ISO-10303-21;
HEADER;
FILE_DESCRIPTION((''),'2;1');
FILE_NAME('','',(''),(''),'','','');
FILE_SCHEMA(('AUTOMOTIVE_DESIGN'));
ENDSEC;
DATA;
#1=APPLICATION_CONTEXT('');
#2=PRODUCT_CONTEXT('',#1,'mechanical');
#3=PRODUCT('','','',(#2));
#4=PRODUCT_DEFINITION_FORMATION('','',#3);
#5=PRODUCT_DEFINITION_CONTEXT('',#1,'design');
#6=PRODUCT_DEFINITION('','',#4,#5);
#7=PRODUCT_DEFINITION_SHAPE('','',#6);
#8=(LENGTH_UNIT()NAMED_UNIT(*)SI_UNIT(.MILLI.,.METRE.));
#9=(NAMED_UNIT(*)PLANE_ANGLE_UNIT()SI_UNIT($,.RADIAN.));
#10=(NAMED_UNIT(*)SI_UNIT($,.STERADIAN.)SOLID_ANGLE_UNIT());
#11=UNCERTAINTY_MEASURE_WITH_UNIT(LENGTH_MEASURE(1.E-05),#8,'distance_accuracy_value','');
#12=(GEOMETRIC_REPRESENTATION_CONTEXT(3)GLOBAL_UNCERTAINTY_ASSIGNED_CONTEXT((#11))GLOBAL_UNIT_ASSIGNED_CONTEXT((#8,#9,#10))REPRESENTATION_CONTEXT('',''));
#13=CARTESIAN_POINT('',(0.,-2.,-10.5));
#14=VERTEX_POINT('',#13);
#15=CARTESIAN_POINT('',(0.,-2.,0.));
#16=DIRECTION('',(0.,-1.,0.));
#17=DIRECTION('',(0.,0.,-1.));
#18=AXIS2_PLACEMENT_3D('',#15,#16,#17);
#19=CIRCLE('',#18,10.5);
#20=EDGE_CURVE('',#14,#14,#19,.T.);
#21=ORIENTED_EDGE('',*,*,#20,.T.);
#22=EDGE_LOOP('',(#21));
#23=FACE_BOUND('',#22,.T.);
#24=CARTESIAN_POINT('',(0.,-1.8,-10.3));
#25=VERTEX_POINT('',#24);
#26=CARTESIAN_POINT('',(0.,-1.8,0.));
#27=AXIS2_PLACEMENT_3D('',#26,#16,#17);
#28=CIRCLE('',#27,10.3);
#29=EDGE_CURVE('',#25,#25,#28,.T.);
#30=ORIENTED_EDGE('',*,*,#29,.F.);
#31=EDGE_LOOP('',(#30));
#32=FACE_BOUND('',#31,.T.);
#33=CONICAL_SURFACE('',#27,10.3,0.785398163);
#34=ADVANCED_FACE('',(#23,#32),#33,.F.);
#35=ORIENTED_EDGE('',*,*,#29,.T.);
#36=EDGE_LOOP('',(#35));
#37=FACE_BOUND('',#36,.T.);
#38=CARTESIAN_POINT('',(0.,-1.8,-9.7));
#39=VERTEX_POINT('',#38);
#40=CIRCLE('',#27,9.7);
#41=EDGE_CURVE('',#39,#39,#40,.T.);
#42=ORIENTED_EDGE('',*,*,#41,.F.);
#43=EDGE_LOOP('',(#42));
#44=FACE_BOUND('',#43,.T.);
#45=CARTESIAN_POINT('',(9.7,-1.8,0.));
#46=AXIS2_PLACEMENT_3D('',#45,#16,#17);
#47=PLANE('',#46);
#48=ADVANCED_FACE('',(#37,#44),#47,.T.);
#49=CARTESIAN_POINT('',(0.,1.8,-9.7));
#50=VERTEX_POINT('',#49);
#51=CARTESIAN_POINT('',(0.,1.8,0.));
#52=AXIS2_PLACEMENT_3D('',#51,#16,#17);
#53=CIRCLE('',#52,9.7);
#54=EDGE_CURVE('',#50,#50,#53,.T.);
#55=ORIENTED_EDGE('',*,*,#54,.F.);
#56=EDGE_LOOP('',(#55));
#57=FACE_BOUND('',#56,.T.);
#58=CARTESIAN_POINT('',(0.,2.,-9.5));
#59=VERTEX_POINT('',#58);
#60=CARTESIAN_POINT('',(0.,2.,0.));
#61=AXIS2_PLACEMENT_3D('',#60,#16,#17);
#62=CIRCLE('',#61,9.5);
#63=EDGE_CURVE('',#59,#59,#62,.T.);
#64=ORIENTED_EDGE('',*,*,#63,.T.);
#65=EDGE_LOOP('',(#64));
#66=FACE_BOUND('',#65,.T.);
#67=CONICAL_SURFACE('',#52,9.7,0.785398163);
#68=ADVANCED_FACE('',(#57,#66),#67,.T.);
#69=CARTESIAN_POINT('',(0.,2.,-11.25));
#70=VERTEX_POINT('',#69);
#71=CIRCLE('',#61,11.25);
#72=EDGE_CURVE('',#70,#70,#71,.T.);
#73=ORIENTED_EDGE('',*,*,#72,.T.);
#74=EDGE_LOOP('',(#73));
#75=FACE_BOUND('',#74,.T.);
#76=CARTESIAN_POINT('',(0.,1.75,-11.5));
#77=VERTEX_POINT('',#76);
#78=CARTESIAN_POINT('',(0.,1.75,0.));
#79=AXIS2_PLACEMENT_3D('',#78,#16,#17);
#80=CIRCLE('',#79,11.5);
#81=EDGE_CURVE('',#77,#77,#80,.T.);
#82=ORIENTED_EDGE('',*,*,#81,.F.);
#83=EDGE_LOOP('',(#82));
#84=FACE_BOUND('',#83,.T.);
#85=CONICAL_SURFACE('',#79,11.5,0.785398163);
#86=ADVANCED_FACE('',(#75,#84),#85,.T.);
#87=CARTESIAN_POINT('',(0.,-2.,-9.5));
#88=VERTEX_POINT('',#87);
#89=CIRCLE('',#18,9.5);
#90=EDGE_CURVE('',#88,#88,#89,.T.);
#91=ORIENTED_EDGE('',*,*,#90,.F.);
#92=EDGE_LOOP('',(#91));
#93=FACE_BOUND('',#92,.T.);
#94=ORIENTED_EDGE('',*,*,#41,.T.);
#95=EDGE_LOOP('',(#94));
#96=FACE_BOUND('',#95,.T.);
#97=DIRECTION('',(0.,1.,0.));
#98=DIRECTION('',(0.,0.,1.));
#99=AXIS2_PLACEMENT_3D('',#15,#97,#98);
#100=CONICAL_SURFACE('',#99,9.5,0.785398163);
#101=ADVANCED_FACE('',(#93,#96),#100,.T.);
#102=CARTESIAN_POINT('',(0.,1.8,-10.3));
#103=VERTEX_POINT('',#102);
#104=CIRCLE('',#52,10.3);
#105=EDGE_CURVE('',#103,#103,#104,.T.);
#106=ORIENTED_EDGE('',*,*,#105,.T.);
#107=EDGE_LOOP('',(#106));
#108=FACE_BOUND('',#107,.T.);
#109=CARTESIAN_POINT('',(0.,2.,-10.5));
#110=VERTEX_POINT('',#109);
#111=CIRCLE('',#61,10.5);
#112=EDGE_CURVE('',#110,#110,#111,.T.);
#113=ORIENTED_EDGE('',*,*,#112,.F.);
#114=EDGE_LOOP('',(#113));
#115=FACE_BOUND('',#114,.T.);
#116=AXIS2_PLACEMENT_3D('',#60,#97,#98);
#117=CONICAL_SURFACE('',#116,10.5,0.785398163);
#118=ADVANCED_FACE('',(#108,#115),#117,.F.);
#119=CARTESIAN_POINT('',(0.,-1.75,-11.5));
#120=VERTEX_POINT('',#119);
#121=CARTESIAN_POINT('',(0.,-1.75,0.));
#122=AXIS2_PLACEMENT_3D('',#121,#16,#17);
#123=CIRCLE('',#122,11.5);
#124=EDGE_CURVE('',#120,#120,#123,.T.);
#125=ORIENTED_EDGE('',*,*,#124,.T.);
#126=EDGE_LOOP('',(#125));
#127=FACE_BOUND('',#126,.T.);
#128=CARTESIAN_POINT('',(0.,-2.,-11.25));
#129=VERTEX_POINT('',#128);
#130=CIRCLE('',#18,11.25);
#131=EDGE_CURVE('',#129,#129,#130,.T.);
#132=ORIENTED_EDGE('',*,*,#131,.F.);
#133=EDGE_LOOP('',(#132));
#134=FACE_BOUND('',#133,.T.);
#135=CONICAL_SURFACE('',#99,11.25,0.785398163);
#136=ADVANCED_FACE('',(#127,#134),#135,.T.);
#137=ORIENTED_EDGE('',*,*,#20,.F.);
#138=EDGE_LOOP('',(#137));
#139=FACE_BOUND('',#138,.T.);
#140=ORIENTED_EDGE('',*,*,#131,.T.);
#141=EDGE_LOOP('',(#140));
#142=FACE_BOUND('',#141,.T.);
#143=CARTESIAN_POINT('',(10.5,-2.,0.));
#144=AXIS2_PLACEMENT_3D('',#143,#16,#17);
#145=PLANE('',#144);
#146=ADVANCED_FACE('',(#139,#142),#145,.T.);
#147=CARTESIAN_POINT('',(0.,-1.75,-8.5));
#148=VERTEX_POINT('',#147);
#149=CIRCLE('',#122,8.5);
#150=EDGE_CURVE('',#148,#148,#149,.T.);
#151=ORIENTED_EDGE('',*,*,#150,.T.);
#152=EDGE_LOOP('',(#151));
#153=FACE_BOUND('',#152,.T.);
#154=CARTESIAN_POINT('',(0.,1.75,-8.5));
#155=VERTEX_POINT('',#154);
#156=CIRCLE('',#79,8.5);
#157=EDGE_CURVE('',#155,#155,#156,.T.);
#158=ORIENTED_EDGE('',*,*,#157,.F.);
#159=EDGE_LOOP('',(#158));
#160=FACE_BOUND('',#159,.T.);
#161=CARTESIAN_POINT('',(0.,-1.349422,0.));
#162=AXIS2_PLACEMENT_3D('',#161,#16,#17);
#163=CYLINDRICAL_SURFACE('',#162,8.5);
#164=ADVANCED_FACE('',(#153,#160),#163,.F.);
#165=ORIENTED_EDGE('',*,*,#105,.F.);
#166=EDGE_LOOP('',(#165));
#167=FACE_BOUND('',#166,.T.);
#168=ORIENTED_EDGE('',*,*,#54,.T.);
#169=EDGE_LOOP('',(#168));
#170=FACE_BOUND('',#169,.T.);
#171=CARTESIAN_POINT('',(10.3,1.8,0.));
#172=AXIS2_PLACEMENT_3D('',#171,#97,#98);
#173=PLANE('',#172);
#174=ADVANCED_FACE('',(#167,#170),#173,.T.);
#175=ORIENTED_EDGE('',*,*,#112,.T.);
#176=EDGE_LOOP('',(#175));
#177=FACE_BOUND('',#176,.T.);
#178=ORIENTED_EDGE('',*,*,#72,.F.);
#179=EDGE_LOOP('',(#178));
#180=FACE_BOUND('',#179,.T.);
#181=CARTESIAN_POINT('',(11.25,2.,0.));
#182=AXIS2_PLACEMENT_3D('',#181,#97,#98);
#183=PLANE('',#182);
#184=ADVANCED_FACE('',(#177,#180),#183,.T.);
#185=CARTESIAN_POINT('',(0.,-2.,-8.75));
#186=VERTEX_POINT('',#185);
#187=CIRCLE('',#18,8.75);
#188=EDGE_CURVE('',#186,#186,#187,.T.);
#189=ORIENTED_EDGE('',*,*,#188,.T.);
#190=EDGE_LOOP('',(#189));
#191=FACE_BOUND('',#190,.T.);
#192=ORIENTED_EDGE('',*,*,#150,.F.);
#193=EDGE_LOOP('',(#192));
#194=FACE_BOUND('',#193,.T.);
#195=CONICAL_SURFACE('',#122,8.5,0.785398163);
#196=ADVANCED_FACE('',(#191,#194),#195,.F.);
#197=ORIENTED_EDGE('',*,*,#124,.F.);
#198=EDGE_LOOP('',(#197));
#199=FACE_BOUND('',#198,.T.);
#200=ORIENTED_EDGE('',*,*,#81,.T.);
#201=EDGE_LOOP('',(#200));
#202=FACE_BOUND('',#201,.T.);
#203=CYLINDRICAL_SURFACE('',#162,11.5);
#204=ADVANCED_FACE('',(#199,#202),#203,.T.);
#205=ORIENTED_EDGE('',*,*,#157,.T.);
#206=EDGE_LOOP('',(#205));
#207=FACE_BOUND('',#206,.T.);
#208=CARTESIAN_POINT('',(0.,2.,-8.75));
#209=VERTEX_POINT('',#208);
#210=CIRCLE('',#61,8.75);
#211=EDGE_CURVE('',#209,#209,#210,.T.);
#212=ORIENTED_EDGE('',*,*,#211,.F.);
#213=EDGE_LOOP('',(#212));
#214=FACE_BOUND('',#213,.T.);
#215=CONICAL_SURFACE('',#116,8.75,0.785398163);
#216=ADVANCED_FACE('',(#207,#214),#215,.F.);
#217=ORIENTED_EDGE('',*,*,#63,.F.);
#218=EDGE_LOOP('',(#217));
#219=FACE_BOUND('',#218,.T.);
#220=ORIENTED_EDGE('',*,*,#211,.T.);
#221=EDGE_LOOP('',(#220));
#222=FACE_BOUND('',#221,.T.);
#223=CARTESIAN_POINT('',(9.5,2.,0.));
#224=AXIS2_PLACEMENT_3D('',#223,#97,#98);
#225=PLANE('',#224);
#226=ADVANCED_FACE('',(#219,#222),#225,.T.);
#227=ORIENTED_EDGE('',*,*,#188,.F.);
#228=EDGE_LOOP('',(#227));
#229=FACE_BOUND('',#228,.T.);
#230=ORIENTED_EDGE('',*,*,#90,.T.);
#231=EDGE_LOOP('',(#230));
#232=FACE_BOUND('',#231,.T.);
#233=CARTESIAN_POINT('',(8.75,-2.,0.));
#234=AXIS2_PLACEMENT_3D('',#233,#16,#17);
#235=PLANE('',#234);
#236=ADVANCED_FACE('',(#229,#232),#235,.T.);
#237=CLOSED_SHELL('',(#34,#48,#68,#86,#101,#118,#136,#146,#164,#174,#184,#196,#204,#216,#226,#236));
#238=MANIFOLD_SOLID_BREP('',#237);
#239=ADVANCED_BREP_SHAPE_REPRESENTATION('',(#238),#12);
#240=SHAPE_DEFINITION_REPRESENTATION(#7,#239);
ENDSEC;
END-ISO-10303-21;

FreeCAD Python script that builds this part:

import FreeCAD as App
import Part
import Sketcher

V = App.Vector


def add_polygon(sketch, points):
    """Adds a closed chain of lines whose ends are joined by coincident constraints."""
    first, n = sketch.GeometryCount, len(points)
    for a, b in zip(points, points[1:] + points[:1]):
        sketch.addGeometry(Part.LineSegment(App.Vector(*a, 0), App.Vector(*b, 0)), False)
    for i in range(n):
        sketch.addConstraint(Sketcher.Constraint("Coincident", first + i, 2, first + (i + 1) % n, 1))

doc = App.newDocument("Part")
body = doc.addObject("PartDesign::Body", "Body")

sketch1 = body.newObject("Sketcher::SketchObject", "Sketch")
sketch1.AttachmentSupport = (doc.getObject("XY_Plane"), [""])
sketch1.MapMode = "FlatFace"
add_polygon(sketch1, [(8.5, 1.75), (8.5, -1.75), (8.75, -2), (9.5, -2), (9.7, -1.8), (10.3, -1.8), (10.5, -2), (11.25, -2), (11.5, -1.75), (11.5, 1.75), (11.25, 2), (10.5, 2), (10.3, 1.8), (9.7, 1.8), (9.5, 2), (8.75, 2)])
sketch1.addConstraint([
    Sketcher.Constraint("Vertical", 0),
    Sketcher.Constraint("Horizontal", 2),
    Sketcher.Constraint("Horizontal", 4),
    Sketcher.Constraint("Horizontal", 6),
    Sketcher.Constraint("Vertical", 8),
    Sketcher.Constraint("Horizontal", 10),
    Sketcher.Constraint("Horizontal", 12),
    Sketcher.Constraint("Horizontal", 14),
    Sketcher.Constraint("Symmetric", 6, 2, 9, 2, -1),
    Sketcher.Constraint("Symmetric", 4, 2, 11, 2, -1),
    Sketcher.Constraint("Symmetric", 2, 2, 13, 2, -1),
    Sketcher.Constraint("Perpendicular", 1, 3),
    Sketcher.Constraint("Perpendicular", 3, 5),
    Sketcher.Constraint("Perpendicular", 5, 7),
    Sketcher.Constraint("Perpendicular", 7, 9),
    Sketcher.Constraint("Perpendicular", 9, 11),
    Sketcher.Constraint("Perpendicular", 11, 13),
    Sketcher.Constraint("Perpendicular", 13, 15),
    Sketcher.Constraint("Horizontal", 2, 2, 5, 2),
    Sketcher.Constraint("Horizontal", 0, 2, 7, 2),
    Sketcher.Constraint("Horizontal", 8, 2, 15, 2),
    Sketcher.Constraint("Vertical", 5, 2, 10, 2),
    Sketcher.Constraint("Equal", 2, 6),
    Sketcher.Constraint("DistanceX", 4, 1, 4, 2, 0.6),
    Sketcher.Constraint("DistanceY", 0, 2, 0, 1, 3.5),
    Sketcher.Constraint("DistanceY", 1, 2, -1, 1, 2.0),
    Sketcher.Constraint("DistanceX", 0, 2, 2, 2, 1.0),
    Sketcher.Constraint("DistanceX", 2, 2, 5, 2, 1.0),
    Sketcher.Constraint("DistanceX", -1, 1, 0, 2, 8.5),
])
revolution = body.newObject("PartDesign::Revolution", "Revolution")
revolution.Profile = sketch1
revolution.ReferenceAxis = (sketch1, ["V_Axis"])
revolution.Angle = 360

doc.recompute()
